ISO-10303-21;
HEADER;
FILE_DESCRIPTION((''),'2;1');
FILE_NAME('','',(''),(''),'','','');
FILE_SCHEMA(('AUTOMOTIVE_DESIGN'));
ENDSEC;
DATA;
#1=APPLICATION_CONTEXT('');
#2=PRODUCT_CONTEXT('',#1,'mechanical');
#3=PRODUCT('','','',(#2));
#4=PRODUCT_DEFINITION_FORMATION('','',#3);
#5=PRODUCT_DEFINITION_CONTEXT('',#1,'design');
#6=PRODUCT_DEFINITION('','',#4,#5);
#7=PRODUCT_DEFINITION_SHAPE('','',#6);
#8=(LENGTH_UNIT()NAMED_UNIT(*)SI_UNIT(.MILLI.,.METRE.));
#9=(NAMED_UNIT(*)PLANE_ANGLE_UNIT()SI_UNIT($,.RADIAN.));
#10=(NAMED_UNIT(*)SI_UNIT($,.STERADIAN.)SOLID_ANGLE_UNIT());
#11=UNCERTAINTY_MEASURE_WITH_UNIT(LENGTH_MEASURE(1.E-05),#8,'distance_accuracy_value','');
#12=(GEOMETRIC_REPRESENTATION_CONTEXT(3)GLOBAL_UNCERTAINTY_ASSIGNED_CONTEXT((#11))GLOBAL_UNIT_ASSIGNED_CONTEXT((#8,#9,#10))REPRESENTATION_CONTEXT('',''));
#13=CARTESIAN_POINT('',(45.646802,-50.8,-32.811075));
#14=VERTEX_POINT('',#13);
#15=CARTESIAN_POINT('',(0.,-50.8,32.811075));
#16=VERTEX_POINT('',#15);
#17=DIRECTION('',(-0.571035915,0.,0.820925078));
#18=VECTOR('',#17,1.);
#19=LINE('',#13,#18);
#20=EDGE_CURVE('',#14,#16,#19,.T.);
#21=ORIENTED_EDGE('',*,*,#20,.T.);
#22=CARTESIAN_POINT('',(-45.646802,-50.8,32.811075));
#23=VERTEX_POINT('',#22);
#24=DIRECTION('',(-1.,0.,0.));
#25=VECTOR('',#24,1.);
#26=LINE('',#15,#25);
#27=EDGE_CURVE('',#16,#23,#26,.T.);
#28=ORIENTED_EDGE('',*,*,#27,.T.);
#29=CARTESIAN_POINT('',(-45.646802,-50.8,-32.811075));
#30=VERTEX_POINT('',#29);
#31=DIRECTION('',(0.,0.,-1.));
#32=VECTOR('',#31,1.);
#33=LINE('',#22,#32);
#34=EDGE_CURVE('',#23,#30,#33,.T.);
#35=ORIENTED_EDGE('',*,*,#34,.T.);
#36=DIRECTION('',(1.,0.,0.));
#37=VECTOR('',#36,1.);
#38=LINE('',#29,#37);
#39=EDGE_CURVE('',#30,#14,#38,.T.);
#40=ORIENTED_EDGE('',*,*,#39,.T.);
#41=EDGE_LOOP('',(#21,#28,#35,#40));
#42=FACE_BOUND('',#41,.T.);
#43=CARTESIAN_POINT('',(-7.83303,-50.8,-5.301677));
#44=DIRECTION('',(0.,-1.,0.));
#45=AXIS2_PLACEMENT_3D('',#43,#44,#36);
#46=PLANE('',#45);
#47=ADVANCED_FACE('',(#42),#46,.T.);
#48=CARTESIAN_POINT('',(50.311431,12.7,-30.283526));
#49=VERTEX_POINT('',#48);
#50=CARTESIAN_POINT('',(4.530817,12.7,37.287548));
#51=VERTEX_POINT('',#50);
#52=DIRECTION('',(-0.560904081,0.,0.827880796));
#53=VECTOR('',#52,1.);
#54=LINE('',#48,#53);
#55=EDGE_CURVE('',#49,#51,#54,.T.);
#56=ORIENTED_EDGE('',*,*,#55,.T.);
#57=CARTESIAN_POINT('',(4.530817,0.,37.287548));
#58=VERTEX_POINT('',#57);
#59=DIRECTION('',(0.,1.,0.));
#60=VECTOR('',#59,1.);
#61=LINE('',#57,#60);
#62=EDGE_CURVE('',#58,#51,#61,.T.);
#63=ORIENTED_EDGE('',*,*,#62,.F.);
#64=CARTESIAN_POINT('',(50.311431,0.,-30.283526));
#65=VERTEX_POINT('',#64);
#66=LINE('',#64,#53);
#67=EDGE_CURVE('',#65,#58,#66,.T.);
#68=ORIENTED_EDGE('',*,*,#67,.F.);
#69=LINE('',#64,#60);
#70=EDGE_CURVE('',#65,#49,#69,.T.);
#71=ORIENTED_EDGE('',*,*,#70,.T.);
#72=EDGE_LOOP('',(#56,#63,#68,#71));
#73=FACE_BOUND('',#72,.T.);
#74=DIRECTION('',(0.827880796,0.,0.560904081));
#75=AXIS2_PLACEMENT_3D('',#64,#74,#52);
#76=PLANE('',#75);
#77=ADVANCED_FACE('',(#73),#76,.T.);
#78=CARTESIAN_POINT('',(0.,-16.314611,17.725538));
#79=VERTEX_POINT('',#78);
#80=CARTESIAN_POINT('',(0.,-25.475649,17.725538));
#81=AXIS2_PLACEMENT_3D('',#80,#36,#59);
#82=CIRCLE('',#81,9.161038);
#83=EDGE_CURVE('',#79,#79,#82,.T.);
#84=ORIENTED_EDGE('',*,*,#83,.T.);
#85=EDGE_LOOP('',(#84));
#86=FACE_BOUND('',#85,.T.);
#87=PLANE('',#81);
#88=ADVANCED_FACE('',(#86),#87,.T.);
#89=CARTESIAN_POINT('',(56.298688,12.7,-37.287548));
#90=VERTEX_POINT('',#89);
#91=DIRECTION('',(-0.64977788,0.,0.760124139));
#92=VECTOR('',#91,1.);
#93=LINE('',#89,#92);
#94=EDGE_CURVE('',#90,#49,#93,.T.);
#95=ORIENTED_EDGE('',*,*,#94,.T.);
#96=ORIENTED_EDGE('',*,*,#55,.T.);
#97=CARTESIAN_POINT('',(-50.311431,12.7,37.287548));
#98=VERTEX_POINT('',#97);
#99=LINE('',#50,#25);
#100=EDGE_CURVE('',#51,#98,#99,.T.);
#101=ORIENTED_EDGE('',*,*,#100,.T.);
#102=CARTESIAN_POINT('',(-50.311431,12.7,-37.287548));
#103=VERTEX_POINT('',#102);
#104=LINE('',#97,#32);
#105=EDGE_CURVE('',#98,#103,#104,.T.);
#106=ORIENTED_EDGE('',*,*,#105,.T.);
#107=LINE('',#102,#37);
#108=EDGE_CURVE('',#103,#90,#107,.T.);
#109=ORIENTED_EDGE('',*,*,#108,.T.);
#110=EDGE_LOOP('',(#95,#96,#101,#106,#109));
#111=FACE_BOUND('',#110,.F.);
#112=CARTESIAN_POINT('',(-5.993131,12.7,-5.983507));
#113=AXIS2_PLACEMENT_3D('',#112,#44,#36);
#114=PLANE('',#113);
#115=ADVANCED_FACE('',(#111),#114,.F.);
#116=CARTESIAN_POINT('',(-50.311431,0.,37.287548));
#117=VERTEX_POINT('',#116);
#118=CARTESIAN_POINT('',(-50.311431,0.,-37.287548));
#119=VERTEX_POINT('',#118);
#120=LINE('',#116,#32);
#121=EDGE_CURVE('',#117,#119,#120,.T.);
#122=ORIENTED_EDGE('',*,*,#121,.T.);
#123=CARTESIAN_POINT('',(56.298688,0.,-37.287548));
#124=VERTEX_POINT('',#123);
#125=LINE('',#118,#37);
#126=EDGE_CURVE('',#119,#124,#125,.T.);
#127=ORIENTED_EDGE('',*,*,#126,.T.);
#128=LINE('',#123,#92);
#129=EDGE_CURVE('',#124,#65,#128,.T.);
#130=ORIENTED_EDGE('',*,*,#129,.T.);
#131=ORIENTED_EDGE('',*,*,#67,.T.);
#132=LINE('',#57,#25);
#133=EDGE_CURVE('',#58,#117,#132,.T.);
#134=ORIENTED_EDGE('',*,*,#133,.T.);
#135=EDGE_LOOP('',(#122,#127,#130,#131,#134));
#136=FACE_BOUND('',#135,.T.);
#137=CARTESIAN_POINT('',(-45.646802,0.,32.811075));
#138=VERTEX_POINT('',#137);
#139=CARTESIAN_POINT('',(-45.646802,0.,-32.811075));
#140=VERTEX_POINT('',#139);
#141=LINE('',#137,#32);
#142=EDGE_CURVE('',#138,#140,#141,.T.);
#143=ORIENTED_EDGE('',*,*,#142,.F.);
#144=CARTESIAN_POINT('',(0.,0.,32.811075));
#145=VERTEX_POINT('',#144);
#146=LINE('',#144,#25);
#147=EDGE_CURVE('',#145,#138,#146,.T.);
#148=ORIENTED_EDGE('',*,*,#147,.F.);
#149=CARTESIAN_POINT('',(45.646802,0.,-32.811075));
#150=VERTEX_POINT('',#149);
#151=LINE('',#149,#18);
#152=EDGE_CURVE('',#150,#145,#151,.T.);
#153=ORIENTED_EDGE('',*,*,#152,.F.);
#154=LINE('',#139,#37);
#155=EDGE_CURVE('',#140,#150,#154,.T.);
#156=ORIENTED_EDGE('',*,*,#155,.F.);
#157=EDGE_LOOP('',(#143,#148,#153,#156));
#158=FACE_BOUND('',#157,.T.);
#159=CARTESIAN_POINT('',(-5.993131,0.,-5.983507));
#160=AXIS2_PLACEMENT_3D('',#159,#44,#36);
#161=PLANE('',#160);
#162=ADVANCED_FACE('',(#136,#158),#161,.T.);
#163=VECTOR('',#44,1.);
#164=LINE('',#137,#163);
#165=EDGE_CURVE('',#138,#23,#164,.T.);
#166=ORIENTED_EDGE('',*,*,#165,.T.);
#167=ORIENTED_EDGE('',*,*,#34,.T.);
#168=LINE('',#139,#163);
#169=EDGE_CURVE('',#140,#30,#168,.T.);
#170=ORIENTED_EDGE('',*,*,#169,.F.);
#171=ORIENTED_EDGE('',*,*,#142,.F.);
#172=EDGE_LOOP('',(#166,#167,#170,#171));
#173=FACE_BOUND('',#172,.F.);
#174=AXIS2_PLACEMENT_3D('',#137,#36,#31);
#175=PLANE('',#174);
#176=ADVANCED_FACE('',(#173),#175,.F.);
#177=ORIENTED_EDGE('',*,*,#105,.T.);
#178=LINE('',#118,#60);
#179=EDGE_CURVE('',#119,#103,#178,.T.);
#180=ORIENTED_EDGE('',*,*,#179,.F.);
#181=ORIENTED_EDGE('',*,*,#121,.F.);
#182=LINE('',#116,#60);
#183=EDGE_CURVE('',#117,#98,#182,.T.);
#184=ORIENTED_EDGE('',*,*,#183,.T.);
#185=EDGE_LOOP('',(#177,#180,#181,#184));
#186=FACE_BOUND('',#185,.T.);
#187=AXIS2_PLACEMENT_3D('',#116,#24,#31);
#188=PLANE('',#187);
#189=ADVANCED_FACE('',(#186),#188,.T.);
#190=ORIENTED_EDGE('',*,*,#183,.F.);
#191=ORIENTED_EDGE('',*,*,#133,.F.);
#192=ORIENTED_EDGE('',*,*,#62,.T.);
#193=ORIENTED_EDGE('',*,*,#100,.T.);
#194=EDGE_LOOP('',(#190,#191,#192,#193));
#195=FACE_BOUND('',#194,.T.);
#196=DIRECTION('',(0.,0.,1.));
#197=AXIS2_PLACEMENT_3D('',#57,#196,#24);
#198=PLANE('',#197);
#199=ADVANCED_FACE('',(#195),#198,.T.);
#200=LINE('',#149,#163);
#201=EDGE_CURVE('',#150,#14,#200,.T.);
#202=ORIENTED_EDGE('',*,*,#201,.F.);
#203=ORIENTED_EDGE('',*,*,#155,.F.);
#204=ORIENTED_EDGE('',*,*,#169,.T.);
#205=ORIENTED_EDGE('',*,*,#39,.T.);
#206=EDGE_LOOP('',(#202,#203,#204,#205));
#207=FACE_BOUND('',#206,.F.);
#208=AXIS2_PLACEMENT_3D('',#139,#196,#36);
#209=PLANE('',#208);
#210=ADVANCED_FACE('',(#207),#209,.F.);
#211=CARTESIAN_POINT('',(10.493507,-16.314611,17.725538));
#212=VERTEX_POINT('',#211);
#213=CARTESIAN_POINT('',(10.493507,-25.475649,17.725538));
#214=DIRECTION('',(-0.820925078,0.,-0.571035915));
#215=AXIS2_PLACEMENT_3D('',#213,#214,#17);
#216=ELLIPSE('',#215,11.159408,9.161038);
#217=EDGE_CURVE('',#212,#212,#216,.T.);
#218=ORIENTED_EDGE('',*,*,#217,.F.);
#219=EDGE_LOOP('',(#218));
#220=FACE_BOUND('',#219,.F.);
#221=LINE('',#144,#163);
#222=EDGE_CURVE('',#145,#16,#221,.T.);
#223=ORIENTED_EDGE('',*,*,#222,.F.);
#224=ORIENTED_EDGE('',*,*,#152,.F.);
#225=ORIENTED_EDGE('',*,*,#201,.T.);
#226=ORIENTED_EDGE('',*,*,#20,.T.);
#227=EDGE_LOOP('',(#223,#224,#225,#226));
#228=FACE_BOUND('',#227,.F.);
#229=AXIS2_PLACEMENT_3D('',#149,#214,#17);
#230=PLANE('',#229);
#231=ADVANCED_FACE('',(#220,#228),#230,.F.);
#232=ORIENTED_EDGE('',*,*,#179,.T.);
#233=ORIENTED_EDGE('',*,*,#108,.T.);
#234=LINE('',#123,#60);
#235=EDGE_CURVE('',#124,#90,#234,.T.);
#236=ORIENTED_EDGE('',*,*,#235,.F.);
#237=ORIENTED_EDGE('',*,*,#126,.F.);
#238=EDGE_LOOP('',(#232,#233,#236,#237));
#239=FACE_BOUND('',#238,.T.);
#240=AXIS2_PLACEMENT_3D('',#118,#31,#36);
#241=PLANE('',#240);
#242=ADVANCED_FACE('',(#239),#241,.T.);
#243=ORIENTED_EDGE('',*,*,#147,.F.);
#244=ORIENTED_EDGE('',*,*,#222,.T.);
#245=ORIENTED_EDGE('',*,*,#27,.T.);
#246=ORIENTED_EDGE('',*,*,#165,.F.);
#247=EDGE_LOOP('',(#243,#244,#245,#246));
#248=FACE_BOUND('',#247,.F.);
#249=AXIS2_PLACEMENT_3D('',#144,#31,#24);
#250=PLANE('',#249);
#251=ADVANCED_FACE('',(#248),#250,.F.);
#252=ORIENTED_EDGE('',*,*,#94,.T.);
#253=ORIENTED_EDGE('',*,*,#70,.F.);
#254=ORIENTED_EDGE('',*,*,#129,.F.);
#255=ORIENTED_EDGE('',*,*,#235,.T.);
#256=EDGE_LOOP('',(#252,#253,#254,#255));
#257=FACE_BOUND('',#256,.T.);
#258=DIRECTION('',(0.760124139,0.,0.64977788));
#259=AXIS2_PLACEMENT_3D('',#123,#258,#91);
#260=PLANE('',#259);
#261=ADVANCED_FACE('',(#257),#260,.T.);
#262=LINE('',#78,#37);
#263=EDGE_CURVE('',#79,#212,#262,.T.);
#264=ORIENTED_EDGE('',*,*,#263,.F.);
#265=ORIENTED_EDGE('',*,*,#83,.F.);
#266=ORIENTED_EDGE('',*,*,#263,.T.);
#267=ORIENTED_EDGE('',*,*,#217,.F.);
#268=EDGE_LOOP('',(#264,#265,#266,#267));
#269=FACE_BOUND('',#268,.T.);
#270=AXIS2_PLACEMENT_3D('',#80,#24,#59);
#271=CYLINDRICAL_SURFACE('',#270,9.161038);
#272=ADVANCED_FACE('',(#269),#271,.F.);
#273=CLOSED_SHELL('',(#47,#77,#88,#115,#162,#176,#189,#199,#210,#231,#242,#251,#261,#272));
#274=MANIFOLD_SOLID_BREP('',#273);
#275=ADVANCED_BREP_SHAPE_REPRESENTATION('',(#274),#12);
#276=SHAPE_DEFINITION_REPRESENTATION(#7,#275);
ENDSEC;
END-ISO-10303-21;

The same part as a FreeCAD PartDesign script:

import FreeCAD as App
import Part
import Sketcher
from FreeCAD import Vector
Q = App.Units.Quantity


def add_polygon(sketch, points):
    """Adds a closed chain of lines whose ends are joined by coincident constraints."""
    first, n = sketch.GeometryCount, len(points)
    for a, b in zip(points, points[1:] + points[:1]):
        sketch.addGeometry(Part.LineSegment(App.Vector(*a, 0), App.Vector(*b, 0)), False)
    for i in range(n):
        sketch.addConstraint(Sketcher.Constraint("Coincident", first + i, 2, first + (i + 1) % n, 1))

doc = App.newDocument("Part")
body = doc.addObject("PartDesign::Body", "Body")

# Sketch on XZ plane
sketch1 = doc.addObject("Sketcher::SketchObject", "Sketch")
body.addObject(sketch1)
sketch1.AttachmentSupport = (doc.XZ_Plane, [""])
sketch1.MapMode = "FlatFace"
add_polygon(sketch1, [(-46, -33), (46, -33), (0, 33), (-46, 33)])  # lines 0-3
sketch1.addConstraint(Sketcher.Constraint("Horizontal", 0))
sketch1.addConstraint(Sketcher.Constraint("Horizontal", 2))
sketch1.addConstraint(Sketcher.Constraint("Vertical", 3))
sketch1.addConstraint(Sketcher.Constraint("Symmetric", 0, 2, 2, 2, -1, 1))
sketch1.addConstraint(Sketcher.Constraint("PointOnObject", 1, 2, -2))
sketch1.addConstraint(Sketcher.Constraint("DistanceY", 3, 2, 3, 1, Q("65.62215 mm")))
sketch1.addConstraint(Sketcher.Constraint("Distance", 1, Q("79.936832 mm")))
pad1 = doc.addObject("PartDesign::Pad", "Pad")
body.addObject(pad1)
pad1.Profile = sketch1
pad1.Length = Q("2 in")

# Sketch on XZ plane
sketch2 = doc.addObject("Sketcher::SketchObject", "Sketch001")
body.addObject(sketch2)
sketch2.AttachmentSupport = (doc.XZ_Plane, [""])
sketch2.MapMode = "FlatFace"
add_polygon(sketch2, [(5, 37), (-50, 37), (-50, -37), (56, -37), (50, -30)])  # lines 0-4
sketch2.addConstraint(Sketcher.Constraint("Horizontal", 0))
sketch2.addConstraint(Sketcher.Constraint("Vertical", 1))
sketch2.addConstraint(Sketcher.Constraint("Horizontal", 2))
sketch2.addConstraint(Sketcher.Constraint("DistanceX", 2, 1, 2, 2, Q("106.610119 mm")))
sketch2.addConstraint(Sketcher.Constraint("DistanceX", 0, 2, 0, 1, Q("54.842248 mm")))
sketch2.addConstraint(Sketcher.Constraint("DistanceY", 1, 2, 1, 1, Q("74.575096 mm")))
sketch2.addConstraint(Sketcher.Constraint("DistanceX", 0, 2, -1, 1, Q("50.311431 mm")))
sketch2.addConstraint(Sketcher.Constraint("DistanceX", -1, 1, 3, 2, Q("50.311431 mm")))
sketch2.addConstraint(Sketcher.Constraint("Distance", 3, Q("9.214313 mm")))
sketch2.addConstraint(Sketcher.Constraint("DistanceY", -1, 1, 0, 2, Q("37.287548 mm")))
pad2 = doc.addObject("PartDesign::Pad", "Pad001")
body.addObject(pad2)
pad2.Profile = sketch2
pad2.Length = Q("0.5 in")
pad2.Reversed = True

# Sketch on YZ plane
sketch3 = doc.addObject("Sketcher::SketchObject", "Sketch002")
body.addObject(sketch3)
sketch3.AttachmentSupport = (doc.YZ_Plane, [""])
sketch3.MapMode = "FlatFace"
sketch3.addGeometry(Part.Circle(Vector(-25, 18, 0), Vector(0, 0, 1), 9), False)
sketch3.addConstraint(Sketcher.Constraint("Diameter", 0, Q("18.322076 mm")))
sketch3.addConstraint(Sketcher.Constraint("DistanceX", 0, 3, -1, 1, Q("25.475649 mm")))
sketch3.addConstraint(Sketcher.Constraint("DistanceY", -1, 1, 0, 3, Q("17.725538 mm")))
pocket1 = doc.addObject("PartDesign::Pocket", "Pocket")
body.addObject(pocket1)
pocket1.Profile = sketch3
pocket1.Length = Q("2 in")
pocket1.Reversed = True

doc.recompute()
